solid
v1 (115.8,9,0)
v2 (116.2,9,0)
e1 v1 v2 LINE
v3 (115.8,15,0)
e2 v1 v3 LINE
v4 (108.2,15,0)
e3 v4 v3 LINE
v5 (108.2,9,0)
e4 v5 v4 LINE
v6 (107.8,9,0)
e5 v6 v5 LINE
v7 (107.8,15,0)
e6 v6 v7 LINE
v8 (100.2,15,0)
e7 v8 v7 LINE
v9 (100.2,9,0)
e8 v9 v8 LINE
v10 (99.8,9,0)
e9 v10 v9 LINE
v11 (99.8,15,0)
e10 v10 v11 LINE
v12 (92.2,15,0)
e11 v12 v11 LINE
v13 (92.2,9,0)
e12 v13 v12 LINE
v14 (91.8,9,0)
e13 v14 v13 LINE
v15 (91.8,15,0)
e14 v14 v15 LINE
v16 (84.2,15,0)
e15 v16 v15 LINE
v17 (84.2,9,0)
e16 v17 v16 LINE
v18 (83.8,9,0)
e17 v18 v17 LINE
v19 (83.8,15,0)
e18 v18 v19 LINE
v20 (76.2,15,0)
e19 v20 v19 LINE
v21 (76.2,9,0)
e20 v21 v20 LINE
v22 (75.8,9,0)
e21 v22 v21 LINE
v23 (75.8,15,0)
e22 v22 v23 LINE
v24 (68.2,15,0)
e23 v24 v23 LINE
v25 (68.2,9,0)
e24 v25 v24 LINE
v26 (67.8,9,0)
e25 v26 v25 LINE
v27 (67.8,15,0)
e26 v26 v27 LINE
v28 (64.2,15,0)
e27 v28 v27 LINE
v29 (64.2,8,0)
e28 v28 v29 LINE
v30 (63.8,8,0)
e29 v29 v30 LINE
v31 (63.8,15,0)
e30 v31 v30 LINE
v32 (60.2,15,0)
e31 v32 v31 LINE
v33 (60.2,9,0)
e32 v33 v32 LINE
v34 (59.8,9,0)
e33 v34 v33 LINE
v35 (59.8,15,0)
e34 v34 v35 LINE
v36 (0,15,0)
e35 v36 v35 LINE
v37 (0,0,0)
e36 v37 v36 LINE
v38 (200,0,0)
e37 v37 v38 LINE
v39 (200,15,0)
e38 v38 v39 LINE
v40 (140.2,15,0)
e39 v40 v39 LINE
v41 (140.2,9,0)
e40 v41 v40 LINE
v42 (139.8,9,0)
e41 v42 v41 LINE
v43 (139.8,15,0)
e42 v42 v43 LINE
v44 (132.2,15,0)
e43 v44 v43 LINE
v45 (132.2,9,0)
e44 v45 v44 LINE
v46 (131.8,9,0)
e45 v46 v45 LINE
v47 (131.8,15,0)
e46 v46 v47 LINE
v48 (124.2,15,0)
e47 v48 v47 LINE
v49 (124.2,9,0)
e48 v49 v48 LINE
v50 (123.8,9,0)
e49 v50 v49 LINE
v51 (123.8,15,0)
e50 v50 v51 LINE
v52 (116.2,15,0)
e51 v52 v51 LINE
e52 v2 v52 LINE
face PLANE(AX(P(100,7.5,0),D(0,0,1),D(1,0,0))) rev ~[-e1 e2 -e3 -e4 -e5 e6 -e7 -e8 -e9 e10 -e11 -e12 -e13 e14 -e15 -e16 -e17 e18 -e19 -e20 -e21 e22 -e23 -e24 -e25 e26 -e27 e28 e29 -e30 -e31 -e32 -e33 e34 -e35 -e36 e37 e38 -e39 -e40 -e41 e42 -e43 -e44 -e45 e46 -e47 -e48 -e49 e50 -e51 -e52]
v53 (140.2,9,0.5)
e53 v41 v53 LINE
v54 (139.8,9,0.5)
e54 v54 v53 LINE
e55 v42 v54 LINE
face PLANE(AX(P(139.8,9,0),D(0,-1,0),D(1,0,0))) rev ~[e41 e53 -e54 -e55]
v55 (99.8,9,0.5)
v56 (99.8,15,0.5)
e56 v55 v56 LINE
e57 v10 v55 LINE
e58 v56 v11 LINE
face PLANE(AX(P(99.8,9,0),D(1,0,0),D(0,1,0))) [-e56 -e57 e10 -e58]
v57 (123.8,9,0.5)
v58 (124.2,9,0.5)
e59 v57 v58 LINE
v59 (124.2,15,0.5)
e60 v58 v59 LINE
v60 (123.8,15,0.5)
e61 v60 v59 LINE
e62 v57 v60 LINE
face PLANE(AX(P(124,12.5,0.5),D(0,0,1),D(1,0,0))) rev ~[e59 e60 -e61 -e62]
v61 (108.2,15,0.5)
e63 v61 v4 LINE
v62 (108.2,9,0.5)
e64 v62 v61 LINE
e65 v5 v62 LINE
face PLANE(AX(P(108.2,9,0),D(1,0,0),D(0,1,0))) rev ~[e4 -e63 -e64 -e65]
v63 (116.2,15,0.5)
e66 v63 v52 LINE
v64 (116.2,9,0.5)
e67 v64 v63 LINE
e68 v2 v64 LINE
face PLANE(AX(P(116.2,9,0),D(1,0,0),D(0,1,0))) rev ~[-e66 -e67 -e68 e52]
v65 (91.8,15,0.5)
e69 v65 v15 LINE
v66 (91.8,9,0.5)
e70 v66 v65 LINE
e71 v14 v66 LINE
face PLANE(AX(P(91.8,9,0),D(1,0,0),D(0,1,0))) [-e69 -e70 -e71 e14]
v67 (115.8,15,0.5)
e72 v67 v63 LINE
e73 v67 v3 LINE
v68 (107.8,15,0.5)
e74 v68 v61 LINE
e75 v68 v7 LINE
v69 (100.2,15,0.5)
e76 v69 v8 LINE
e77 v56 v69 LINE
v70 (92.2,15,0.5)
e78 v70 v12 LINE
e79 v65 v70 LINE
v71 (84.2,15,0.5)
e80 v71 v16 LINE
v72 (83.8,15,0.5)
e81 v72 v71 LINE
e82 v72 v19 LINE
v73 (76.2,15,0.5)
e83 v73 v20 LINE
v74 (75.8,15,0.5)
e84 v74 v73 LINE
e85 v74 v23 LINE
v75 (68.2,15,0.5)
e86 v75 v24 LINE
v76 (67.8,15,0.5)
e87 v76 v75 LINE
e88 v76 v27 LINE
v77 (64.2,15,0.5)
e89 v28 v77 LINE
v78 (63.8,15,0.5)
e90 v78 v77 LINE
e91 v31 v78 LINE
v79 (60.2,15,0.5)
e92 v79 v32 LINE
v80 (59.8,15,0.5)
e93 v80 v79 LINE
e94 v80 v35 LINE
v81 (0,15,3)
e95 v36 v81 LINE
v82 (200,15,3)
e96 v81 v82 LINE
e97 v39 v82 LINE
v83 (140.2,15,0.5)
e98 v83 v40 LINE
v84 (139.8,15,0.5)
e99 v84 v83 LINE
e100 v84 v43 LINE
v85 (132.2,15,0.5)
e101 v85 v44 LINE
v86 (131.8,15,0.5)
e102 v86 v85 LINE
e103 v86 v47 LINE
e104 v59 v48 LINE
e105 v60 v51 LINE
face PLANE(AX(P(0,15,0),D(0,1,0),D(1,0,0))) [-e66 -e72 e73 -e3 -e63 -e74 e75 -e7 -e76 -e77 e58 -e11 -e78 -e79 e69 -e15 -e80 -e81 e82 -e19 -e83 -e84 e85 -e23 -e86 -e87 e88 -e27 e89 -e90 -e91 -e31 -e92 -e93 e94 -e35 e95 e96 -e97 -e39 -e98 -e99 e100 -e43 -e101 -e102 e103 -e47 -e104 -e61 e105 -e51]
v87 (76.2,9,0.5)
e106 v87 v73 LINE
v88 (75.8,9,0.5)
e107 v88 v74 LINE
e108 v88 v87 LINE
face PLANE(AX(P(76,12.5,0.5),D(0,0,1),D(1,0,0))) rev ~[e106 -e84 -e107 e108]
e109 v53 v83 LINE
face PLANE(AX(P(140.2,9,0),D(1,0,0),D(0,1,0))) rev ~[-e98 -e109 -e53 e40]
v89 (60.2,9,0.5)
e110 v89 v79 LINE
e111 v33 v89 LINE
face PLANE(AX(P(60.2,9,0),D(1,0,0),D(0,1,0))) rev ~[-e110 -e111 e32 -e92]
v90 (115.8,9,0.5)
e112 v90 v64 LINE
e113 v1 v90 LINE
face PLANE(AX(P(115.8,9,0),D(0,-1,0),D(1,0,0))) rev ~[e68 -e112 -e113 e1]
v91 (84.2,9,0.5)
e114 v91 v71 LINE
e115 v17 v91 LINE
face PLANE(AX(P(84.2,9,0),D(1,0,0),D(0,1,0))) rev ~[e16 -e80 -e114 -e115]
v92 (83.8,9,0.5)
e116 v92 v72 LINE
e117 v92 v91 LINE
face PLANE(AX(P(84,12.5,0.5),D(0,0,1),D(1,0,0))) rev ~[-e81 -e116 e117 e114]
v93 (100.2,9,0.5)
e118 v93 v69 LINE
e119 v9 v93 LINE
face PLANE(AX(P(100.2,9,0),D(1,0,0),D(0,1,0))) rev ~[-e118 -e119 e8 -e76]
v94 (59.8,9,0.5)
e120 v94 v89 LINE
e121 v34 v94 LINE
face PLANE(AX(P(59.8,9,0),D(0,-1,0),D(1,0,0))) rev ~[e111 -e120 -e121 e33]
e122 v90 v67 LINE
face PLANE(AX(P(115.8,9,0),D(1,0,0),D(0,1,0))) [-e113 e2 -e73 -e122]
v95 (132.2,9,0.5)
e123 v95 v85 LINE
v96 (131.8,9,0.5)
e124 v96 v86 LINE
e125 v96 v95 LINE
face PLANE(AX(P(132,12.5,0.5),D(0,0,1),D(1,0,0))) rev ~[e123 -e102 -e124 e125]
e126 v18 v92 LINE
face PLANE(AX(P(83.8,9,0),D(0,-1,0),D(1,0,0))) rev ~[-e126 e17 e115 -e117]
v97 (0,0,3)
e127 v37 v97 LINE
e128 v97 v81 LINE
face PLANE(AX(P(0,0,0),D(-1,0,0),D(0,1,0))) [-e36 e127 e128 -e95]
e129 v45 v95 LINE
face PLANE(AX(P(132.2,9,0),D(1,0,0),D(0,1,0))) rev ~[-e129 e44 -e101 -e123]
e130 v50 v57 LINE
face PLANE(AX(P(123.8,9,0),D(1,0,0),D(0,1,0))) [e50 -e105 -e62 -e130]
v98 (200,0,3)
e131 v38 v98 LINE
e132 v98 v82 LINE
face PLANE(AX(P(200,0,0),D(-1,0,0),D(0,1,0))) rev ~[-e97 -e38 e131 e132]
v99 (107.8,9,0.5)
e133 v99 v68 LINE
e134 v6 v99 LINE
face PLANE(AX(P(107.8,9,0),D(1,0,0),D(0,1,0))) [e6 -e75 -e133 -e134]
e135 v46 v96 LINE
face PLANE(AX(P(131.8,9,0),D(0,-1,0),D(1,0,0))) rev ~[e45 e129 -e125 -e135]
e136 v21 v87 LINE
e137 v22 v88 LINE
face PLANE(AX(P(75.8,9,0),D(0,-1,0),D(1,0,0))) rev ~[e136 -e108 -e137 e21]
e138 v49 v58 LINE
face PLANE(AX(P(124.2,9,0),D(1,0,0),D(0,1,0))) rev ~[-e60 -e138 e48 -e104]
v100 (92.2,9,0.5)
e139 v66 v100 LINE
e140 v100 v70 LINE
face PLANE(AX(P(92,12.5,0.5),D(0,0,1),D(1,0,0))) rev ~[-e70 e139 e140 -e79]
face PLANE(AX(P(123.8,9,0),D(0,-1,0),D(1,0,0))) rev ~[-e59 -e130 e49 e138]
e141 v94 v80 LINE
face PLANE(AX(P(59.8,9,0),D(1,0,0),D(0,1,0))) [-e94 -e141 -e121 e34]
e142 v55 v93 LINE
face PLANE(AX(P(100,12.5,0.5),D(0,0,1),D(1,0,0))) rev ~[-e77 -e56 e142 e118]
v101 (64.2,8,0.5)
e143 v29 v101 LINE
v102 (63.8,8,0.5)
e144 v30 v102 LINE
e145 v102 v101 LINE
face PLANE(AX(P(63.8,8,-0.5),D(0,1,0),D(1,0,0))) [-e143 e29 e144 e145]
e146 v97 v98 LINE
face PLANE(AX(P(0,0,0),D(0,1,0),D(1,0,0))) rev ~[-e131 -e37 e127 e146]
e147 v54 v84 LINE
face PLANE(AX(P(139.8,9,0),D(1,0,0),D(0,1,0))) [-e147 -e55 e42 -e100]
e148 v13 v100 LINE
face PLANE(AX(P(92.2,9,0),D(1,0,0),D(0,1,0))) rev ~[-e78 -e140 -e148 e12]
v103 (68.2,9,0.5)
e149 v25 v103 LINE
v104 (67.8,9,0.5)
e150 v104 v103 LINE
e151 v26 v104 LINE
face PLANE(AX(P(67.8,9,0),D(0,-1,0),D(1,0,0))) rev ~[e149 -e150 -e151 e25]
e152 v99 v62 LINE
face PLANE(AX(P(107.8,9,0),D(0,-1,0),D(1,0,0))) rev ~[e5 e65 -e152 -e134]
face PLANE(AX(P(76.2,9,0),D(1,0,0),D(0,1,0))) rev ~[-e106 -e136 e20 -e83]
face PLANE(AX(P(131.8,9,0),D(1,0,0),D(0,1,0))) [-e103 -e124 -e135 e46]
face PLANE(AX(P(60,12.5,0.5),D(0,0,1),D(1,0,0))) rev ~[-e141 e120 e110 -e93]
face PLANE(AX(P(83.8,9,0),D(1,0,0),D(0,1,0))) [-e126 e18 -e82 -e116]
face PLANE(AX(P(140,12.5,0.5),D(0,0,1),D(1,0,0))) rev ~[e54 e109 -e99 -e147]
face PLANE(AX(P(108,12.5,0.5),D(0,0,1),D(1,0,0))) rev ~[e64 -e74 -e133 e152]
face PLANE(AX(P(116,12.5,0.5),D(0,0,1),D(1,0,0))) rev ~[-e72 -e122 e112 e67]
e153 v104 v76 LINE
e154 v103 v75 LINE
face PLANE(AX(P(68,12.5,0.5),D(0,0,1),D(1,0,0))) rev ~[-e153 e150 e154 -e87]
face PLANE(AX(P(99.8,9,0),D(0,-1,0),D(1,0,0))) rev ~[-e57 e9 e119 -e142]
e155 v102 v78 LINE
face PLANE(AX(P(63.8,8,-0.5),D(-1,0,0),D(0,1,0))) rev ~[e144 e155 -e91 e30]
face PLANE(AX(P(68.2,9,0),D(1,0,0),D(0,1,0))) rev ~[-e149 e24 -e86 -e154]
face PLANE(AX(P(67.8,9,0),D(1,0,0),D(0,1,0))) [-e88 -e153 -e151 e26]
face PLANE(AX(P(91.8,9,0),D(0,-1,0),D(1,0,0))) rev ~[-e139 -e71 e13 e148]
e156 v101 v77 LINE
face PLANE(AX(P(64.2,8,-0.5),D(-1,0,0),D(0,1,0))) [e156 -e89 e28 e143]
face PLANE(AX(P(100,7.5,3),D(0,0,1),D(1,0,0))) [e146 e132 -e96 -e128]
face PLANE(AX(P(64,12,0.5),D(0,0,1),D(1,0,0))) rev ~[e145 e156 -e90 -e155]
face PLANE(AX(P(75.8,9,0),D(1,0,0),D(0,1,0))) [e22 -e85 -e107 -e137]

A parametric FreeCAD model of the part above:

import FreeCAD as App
import Part
import Sketcher

V = App.Vector
Q = App.Units.Quantity

doc = App.newDocument("Part")
body = doc.addObject("PartDesign::Body", "Body")

sketch1 = body.newObject("Sketcher::SketchObject", "Sketch")
sketch1.AttachmentSupport = (doc.getObject("XY_Plane"), [""])
sketch1.MapMode = "FlatFace"
sketch1.addGeometry([
    Part.LineSegment(V(0, 15, 0), V(0, 0, 0)),
    Part.LineSegment(V(0, 0, 0), V(200, 0, 0)),
    Part.LineSegment(V(200, 0, 0), V(200, 15, 0)),
    Part.LineSegment(V(200, 15, 0), V(0, 15, 0)),
], False)
sketch1.addConstraint([
    Sketcher.Constraint("Coincident", 0, 2, 1, 1),
    Sketcher.Constraint("Coincident", 1, 2, 2, 1),
    Sketcher.Constraint("Coincident", 2, 2, 3, 1),
    Sketcher.Constraint("Coincident", 3, 2, 0, 1),
    Sketcher.Constraint("Vertical", 0),
    Sketcher.Constraint("Horizontal", 1),
    Sketcher.Constraint("Vertical", 2),
    Sketcher.Constraint("Horizontal", 3),
    Sketcher.Constraint("Coincident", 0, 2, -1, 1),
    Sketcher.Constraint("DistanceX", 1, 1, 1, 2, Q("200 mm")),
    Sketcher.Constraint("DistanceY", 0, 2, 0, 1, Q("15 mm")),
])
pad1 = body.newObject("PartDesign::Pad", "Pad")
pad1.Profile = sketch1
pad1.Length = 3

sketch2 = body.newObject("Sketcher::SketchObject", "Sketch001")
sketch2.AttachmentSupport = (doc.getObject("XY_Plane"), [""])
sketch2.MapMode = "FlatFace"
sketch2.addGeometry([
    Part.LineSegment(V(59.8, 16, 0), V(59.8, 9, 0)),
    Part.LineSegment(V(59.8, 9, 0), V(60.2, 9, 0)),
    Part.LineSegment(V(60.2, 9, 0), V(60.2, 16, 0)),
    Part.LineSegment(V(60.2, 16, 0), V(59.8, 16, 0)),
], False)
sketch2.addConstraint([
    Sketcher.Constraint("Coincident", 0, 2, 1, 1),
    Sketcher.Constraint("Coincident", 1, 2, 2, 1),
    Sketcher.Constraint("Coincident", 2, 2, 3, 1),
    Sketcher.Constraint("Coincident", 3, 2, 0, 1),
    Sketcher.Constraint("Vertical", 0),
    Sketcher.Constraint("Horizontal", 1),
    Sketcher.Constraint("Vertical", 2),
    Sketcher.Constraint("Horizontal", 3),
    Sketcher.Constraint("DistanceY", 0, 2, 0, 1, Q("7 mm")),
    Sketcher.Constraint("DistanceX", 1, 1, 1, 2, Q("0.4 mm")),
    Sketcher.Constraint("DistanceY", -1, 1, 0, 2, Q("9 mm")),
    Sketcher.Constraint("DistanceX", -1, 1, 0, 2, Q("59.8 mm")),
])
pocket1 = body.newObject("PartDesign::Pocket", "Pocket")
pocket1.Profile = sketch2
pocket1.Length = 1
pocket1.Midplane = True
doc.recompute()

linearpattern = body.newObject("PartDesign::LinearPattern", "LinearPattern")
linearpattern.Originals = [pocket1]
linearpattern.Direction = (doc.getObject("X_Axis"), [""])
linearpattern.Mode = "offset"
linearpattern.Offset = 8
linearpattern.Occurrences = 11
body.Tip = linearpattern

sketch3 = body.newObject("Sketcher::SketchObject", "Sketch002")
sketch3.AttachmentSupport = (doc.getObject("XY_Plane"), [""])
sketch3.MapMode = "FlatFace"
sketch3.addGeometry([
    Part.LineSegment(V(63.8, 16, 0), V(63.8, 8, 0)),
    Part.LineSegment(V(63.8, 8, 0), V(64.2, 8, 0)),
    Part.LineSegment(V(64.2, 8, 0), V(64.2, 16, 0)),
    Part.LineSegment(V(64.2, 16, 0), V(63.8, 16, 0)),
], False)
sketch3.addConstraint([
    Sketcher.Constraint("Coincident", 0, 2, 1, 1),
    Sketcher.Constraint("Coincident", 1, 2, 2, 1),
    Sketcher.Constraint("Coincident", 2, 2, 3, 1),
    Sketcher.Constraint("Coincident", 3, 2, 0, 1),
    Sketcher.Constraint("Vertical", 0),
    Sketcher.Constraint("Horizontal", 1),
    Sketcher.Constraint("Vertical", 2),
    Sketcher.Constraint("Horizontal", 3),
    Sketcher.Constraint("DistanceY", 0, 2, 0, 1, Q("8 mm")),
    Sketcher.Constraint("DistanceX", 1, 1, 1, 2, Q("0.4 mm")),
    Sketcher.Constraint("DistanceY", -1, 1, 0, 2, Q("8 mm")),
    Sketcher.Constraint("DistanceX", -1, 1, 0, 2, Q("63.8 mm")),
])
pocket2 = body.newObject("PartDesign::Pocket", "Pocket001")
pocket2.Profile = sketch3
pocket2.Type = "TwoLengths"
pocket2.Length = 0.5
pocket2.Length2 = 0.5
pocket2.Reversed = True

doc.recompute()
